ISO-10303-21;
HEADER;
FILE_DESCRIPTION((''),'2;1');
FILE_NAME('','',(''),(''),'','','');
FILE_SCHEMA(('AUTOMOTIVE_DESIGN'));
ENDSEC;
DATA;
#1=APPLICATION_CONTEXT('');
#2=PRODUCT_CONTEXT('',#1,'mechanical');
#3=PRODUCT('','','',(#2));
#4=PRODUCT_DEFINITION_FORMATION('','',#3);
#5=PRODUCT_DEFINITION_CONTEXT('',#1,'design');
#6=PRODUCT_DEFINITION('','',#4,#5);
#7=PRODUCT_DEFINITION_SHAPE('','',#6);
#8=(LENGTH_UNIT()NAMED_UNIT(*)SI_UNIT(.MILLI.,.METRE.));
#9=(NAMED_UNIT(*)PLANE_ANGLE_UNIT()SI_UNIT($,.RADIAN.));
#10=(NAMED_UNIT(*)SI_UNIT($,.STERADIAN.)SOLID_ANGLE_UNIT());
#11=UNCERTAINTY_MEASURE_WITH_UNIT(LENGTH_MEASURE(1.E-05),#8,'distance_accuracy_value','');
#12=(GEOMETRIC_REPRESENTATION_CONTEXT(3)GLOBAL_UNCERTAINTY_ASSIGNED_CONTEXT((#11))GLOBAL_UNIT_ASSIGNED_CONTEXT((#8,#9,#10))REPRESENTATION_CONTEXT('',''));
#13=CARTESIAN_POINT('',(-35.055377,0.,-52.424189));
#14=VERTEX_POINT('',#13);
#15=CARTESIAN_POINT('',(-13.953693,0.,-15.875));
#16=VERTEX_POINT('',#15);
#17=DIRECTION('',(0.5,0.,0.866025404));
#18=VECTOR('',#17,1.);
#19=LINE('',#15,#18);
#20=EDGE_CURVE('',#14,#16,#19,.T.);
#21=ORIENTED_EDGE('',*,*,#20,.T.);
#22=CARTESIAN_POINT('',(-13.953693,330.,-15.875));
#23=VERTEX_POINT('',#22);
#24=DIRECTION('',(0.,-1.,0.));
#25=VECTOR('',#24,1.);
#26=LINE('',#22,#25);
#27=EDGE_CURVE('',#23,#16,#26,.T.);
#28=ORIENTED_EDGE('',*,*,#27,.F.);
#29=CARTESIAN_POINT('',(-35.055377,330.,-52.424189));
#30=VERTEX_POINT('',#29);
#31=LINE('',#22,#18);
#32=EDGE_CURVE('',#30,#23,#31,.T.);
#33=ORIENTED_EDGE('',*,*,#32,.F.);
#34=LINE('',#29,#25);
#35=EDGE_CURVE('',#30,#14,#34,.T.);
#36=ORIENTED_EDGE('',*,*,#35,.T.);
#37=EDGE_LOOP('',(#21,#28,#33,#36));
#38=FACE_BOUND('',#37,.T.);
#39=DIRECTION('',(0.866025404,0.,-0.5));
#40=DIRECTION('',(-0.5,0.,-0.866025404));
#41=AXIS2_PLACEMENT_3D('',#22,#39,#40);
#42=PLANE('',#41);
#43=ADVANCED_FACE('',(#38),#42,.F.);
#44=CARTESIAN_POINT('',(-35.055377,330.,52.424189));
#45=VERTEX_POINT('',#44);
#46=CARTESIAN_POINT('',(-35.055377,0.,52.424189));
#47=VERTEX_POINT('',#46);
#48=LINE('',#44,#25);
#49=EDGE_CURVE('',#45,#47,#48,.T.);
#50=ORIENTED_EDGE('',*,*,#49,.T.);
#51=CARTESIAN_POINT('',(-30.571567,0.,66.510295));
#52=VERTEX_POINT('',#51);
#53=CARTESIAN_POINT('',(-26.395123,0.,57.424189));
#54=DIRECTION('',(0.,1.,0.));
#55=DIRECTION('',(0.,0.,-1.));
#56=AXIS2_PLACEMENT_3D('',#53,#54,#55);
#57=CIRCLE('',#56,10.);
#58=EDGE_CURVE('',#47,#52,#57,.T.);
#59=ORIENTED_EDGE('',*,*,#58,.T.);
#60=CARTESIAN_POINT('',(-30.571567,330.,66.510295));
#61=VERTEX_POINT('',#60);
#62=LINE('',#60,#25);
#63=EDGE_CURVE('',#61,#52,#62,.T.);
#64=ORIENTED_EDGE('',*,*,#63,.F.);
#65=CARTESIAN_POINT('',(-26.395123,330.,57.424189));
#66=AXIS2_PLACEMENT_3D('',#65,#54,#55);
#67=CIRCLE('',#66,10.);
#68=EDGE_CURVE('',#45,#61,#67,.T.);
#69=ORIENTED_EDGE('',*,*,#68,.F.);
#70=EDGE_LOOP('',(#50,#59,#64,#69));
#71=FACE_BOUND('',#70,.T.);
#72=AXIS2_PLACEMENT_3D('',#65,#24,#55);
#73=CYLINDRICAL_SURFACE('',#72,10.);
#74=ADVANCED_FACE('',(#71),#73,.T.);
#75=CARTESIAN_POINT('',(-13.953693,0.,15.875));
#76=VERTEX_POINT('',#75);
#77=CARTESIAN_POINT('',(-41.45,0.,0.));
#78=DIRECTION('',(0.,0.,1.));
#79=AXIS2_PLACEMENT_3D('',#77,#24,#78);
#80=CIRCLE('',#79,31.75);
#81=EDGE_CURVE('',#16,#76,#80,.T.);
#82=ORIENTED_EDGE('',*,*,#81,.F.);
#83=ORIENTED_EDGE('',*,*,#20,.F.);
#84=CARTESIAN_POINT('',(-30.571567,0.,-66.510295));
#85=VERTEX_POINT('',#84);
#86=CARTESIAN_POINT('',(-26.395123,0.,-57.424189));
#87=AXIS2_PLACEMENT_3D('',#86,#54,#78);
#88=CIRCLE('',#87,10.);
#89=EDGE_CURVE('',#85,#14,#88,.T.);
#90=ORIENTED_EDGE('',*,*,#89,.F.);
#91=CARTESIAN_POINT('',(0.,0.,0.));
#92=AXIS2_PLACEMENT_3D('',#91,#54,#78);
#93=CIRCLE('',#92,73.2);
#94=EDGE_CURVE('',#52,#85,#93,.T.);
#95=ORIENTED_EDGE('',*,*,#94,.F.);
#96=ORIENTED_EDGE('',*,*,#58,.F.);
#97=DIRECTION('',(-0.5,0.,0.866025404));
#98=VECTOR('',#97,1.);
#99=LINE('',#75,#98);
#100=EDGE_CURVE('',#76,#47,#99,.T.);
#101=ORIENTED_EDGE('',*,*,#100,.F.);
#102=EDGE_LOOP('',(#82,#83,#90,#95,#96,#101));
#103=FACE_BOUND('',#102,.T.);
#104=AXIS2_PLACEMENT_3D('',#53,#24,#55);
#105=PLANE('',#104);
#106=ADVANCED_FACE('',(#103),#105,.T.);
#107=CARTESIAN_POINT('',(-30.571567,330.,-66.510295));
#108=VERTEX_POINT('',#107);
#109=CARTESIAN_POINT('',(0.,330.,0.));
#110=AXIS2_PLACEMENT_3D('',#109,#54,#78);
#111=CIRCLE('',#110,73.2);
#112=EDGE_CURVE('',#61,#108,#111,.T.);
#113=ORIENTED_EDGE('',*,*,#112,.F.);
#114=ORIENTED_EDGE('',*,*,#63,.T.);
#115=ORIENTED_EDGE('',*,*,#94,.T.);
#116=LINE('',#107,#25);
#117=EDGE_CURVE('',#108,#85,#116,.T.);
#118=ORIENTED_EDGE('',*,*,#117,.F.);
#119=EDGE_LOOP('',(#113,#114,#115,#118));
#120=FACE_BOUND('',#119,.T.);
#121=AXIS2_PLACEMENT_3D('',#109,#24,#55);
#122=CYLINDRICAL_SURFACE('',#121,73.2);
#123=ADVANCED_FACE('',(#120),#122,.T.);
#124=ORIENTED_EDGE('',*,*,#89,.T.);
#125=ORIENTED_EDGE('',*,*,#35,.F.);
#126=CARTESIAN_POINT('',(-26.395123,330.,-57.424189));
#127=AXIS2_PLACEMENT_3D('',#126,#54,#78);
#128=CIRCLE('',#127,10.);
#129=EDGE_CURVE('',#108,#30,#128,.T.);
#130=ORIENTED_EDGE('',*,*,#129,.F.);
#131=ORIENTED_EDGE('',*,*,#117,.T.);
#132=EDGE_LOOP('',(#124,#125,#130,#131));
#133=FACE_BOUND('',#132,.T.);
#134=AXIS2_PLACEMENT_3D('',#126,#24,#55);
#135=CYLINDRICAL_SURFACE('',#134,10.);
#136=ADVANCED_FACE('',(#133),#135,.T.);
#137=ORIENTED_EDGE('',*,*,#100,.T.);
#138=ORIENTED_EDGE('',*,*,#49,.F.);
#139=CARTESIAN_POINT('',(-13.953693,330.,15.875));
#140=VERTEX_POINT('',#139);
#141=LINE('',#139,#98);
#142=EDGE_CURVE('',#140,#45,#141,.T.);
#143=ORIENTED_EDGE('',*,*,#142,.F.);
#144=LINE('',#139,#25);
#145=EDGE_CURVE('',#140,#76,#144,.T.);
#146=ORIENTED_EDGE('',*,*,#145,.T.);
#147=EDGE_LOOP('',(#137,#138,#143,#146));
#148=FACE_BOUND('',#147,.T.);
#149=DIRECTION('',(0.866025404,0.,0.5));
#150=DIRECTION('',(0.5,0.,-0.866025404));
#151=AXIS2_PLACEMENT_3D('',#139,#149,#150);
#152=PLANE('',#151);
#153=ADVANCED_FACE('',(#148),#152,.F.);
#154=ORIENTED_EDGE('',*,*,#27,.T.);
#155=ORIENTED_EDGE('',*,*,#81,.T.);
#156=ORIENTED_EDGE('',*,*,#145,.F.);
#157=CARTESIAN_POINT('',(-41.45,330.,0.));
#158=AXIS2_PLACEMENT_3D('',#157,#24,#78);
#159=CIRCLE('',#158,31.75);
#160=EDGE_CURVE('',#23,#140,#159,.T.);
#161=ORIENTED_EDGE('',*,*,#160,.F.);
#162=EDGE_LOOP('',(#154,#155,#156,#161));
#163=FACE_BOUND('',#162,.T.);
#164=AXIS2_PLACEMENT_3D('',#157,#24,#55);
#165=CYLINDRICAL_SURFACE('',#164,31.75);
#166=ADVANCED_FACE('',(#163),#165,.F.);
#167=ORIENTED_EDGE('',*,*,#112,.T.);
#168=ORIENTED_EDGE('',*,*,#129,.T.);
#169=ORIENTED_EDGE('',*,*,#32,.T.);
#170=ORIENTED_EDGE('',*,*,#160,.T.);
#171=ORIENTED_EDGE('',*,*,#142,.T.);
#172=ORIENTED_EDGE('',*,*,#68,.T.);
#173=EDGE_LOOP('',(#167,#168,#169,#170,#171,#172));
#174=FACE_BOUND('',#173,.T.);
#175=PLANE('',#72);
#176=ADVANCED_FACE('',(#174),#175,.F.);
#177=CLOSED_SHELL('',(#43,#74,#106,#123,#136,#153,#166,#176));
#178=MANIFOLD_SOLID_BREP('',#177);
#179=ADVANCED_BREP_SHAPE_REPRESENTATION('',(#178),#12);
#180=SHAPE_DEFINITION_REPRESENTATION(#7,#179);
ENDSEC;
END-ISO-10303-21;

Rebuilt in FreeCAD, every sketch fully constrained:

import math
import FreeCAD as App
import Part
import Sketcher

V = App.Vector
Q = App.Units.Quantity

doc = App.newDocument("Part")
body = doc.addObject("PartDesign::Body", "Body")

# Sketch on XZ plane
sketch1 = body.newObject("Sketcher::SketchObject", "Sketch")
sketch1.AttachmentSupport = (doc.getObject("XZ_Plane"), [""])
sketch1.MapMode = "FlatFace"
sketch1.addGeometry(Part.LineSegment(V(-35, -52, 0), V(-14, -16, 0)), False)
sketch1.addGeometry(Part.ArcOfCircle(Part.Circle(V(-41, 0, 0), V(0, 0, 1), 32), math.radians(-30), math.radians(30)), False)
sketch1.addGeometry(Part.LineSegment(V(-14, 16, 0), V(-35, 52, 0)), False)
sketch1.addGeometry(Part.ArcOfCircle(Part.Circle(V(-26, 57, 0), V(0, 0, 1), 10), math.radians(115), math.radians(210)), False)
sketch1.addGeometry(Part.ArcOfCircle(Part.Circle(V(0, 0, 0), V(0, 0, 1), 73), math.radians(-115), math.radians(115)), False)
sketch1.addGeometry(Part.ArcOfCircle(Part.Circle(V(-26, -57, 0), V(0, 0, 1), 10), math.radians(150), math.radians(245)), False)
sketch1.addConstraint(Sketcher.Constraint("Tangent", 0, 2, 1, 1))
sketch1.addConstraint(Sketcher.Constraint("Tangent", 1, 2, 2, 1))
sketch1.addConstraint(Sketcher.Constraint("Tangent", 2, 2, 3, 2))
sketch1.addConstraint(Sketcher.Constraint("Tangent", 3, 1, 4, 2))
sketch1.addConstraint(Sketcher.Constraint("Tangent", 4, 1, 5, 2))
sketch1.addConstraint(Sketcher.Constraint("Tangent", 5, 1, 0, 1))
sketch1.addConstraint(Sketcher.Constraint("Coincident", 4, 3, -1, 1))
sketch1.addConstraint(Sketcher.Constraint("Equal", 3, 5))
sketch1.addConstraint(Sketcher.Constraint("Symmetric", 0, 2, 1, 2, -1))
sketch1.addConstraint(Sketcher.Constraint("Radius", 3, Q("10 mm")))
sketch1.addConstraint(Sketcher.Constraint("Radius", 4, Q("73.2 mm")))
sketch1.addConstraint(Sketcher.Constraint("Angle", 0, Q("60 deg")))
sketch1.addConstraint(Sketcher.Constraint("Radius", 1, Q("31.75 mm")))
sketch1.addConstraint(Sketcher.Constraint("DistanceX", 1, 3, -1, 1, Q("41.45 mm")))
pad1 = body.newObject("PartDesign::Pad", "Pad")
pad1.Profile = sketch1
pad1.Length = 330
pad1.Reversed = True

doc.recompute()
